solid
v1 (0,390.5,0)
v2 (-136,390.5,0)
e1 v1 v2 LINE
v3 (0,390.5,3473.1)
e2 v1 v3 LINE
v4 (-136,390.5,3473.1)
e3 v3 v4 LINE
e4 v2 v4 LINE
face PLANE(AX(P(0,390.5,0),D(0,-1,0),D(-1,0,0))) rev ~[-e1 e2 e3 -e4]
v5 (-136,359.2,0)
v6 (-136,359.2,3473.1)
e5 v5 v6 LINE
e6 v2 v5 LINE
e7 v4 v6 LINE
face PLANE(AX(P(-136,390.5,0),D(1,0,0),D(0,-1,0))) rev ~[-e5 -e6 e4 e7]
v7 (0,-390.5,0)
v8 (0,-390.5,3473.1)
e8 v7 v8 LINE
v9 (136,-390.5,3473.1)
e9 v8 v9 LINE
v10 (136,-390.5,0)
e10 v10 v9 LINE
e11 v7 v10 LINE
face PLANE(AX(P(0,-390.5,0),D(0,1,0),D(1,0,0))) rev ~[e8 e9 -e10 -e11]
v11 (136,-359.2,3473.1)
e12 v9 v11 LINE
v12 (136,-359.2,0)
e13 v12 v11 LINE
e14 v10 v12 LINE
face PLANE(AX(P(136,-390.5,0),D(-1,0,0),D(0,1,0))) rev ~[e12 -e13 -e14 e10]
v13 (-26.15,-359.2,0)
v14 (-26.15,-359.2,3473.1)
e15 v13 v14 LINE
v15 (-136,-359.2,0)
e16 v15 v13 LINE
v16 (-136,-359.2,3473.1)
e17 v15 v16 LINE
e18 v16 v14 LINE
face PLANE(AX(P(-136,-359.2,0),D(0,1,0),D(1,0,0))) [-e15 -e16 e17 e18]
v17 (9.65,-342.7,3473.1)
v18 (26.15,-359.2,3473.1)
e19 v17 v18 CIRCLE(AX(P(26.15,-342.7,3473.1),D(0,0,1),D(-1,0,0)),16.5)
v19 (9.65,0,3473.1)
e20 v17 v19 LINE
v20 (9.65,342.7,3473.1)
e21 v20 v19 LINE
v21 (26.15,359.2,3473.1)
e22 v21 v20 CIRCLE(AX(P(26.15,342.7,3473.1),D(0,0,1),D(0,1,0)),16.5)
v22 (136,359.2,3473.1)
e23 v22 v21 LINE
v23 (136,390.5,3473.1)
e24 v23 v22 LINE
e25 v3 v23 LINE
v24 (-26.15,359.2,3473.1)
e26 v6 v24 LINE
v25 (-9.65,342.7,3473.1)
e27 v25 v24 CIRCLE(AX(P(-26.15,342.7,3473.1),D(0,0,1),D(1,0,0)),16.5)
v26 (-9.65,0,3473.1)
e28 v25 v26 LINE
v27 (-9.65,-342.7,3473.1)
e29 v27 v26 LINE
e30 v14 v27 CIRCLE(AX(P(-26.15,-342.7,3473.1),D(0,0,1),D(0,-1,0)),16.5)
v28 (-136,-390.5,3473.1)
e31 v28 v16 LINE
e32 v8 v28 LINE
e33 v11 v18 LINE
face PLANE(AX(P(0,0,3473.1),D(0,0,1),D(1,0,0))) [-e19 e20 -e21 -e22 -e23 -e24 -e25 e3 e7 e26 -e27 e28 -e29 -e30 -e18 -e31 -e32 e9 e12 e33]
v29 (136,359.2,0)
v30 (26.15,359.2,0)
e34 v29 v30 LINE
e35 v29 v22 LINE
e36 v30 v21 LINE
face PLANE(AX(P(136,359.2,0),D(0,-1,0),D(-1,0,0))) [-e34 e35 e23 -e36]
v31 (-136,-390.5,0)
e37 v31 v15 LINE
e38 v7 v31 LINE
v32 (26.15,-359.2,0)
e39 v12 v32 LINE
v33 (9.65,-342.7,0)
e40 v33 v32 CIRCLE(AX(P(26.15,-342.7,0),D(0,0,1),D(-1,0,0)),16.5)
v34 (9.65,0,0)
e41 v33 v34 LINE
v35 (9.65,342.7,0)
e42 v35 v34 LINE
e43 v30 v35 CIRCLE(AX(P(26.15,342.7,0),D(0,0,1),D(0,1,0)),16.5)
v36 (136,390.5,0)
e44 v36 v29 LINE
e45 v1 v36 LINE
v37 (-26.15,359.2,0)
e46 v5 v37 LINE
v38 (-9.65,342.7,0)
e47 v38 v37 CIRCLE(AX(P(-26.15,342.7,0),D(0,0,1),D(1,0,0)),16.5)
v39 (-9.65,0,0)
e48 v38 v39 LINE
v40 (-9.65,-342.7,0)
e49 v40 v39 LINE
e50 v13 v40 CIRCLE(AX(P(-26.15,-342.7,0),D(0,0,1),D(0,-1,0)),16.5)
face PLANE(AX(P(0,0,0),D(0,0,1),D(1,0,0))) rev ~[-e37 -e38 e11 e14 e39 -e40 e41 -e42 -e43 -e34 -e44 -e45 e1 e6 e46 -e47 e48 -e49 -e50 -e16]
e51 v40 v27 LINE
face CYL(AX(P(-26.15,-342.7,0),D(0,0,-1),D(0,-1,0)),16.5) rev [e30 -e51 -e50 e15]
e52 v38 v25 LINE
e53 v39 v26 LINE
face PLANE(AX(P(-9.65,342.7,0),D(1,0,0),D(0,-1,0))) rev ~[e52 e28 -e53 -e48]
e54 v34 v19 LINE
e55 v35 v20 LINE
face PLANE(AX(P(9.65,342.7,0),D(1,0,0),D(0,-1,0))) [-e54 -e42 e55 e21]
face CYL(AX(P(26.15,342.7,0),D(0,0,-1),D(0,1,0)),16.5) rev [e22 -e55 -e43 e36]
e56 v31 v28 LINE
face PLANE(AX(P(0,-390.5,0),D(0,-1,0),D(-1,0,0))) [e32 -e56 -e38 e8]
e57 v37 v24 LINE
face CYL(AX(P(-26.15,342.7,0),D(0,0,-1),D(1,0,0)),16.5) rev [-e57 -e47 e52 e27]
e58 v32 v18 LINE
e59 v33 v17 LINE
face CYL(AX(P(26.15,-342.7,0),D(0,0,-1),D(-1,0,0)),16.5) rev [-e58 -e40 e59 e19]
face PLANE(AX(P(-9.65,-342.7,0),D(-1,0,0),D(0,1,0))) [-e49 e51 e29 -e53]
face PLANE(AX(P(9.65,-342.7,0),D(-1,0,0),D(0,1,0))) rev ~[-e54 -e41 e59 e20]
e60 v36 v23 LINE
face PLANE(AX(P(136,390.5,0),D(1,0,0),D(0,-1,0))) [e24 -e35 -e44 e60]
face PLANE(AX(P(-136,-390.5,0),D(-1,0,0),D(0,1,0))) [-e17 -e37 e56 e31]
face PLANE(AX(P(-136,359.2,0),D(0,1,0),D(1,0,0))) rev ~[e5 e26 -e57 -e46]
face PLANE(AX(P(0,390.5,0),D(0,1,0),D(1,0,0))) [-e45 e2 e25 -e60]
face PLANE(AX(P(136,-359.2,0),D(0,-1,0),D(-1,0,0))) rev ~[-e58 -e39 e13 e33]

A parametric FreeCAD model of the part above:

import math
import FreeCAD as App
import Part
import Sketcher
Q = App.Units.Quantity

doc = App.newDocument("Part")
body = doc.addObject("PartDesign::Body", "Body")

# Sketch on XY plane
sketch1 = body.newObject("Sketcher::SketchObject", "Sketch")
sketch1.AttachmentSupport = (doc.getObject("XY_Plane"), [""])
sketch1.MapMode = "FlatFace"
sketch1.addGeometry(Part.LineSegment(App.Vector(-136, -359, 0), App.Vector(-136, -390, 0)), False)
sketch1.addGeometry(Part.LineSegment(App.Vector(-136, -390, 0), App.Vector(136, -390, 0)), False)
sketch1.addGeometry(Part.LineSegment(App.Vector(136, -390, 0), App.Vector(136, -359, 0)), False)
sketch1.addGeometry(Part.LineSegment(App.Vector(136, -359, 0), App.Vector(26, -359, 0)), False)
sketch1.addGeometry(Part.ArcOfCircle(Part.Circle(App.Vector(26, -343, 0), App.Vector(0, 0, 1), 16), math.radians(180), math.radians(270)), False)
sketch1.addGeometry(Part.LineSegment(App.Vector(10, -343, 0), App.Vector(10, 343, 0)), False)
sketch1.addGeometry(Part.ArcOfCircle(Part.Circle(App.Vector(26, 343, 0), App.Vector(0, 0, 1), 16), math.radians(90), math.radians(180)), False)
sketch1.addGeometry(Part.LineSegment(App.Vector(26, 359, 0), App.Vector(136, 359, 0)), False)
sketch1.addGeometry(Part.LineSegment(App.Vector(136, 359, 0), App.Vector(136, 390, 0)), False)
sketch1.addGeometry(Part.LineSegment(App.Vector(136, 390, 0), App.Vector(-136, 390, 0)), False)
sketch1.addGeometry(Part.LineSegment(App.Vector(-136, 390, 0), App.Vector(-136, 359, 0)), False)
sketch1.addGeometry(Part.LineSegment(App.Vector(-136, 359, 0), App.Vector(-26, 359, 0)), False)
sketch1.addGeometry(Part.ArcOfCircle(Part.Circle(App.Vector(-26, 343, 0), App.Vector(0, 0, 1), 16), math.radians(0), math.radians(90)), False)
sketch1.addGeometry(Part.LineSegment(App.Vector(-10, 343, 0), App.Vector(-10, -343, 0)), False)
sketch1.addGeometry(Part.ArcOfCircle(Part.Circle(App.Vector(-26, -343, 0), App.Vector(0, 0, 1), 16), math.radians(-90), math.radians(0)), False)
sketch1.addGeometry(Part.LineSegment(App.Vector(-26, -359, 0), App.Vector(-136, -359, 0)), False)
sketch1.addConstraint(Sketcher.Constraint("Coincident", 0, 2, 1, 1))
sketch1.addConstraint(Sketcher.Constraint("Coincident", 1, 2, 2, 1))
sketch1.addConstraint(Sketcher.Constraint("Coincident", 2, 2, 3, 1))
sketch1.addConstraint(Sketcher.Constraint("Tangent", 3, 2, 4, 2))
sketch1.addConstraint(Sketcher.Constraint("Tangent", 4, 1, 5, 1))
sketch1.addConstraint(Sketcher.Constraint("Tangent", 5, 2, 6, 2))
sketch1.addConstraint(Sketcher.Constraint("Tangent", 6, 1, 7, 1))
sketch1.addConstraint(Sketcher.Constraint("Coincident", 7, 2, 8, 1))
sketch1.addConstraint(Sketcher.Constraint("Coincident", 8, 2, 9, 1))
sketch1.addConstraint(Sketcher.Constraint("Coincident", 9, 2, 10, 1))
sketch1.addConstraint(Sketcher.Constraint("Coincident", 10, 2, 11, 1))
sketch1.addConstraint(Sketcher.Constraint("Tangent", 11, 2, 12, 2))
sketch1.addConstraint(Sketcher.Constraint("Tangent", 12, 1, 13, 1))
sketch1.addConstraint(Sketcher.Constraint("Tangent", 13, 2, 14, 2))
sketch1.addConstraint(Sketcher.Constraint("Tangent", 14, 1, 15, 1))
sketch1.addConstraint(Sketcher.Constraint("Coincident", 15, 2, 0, 1))
sketch1.addConstraint(Sketcher.Constraint("Vertical", 0))
sketch1.addConstraint(Sketcher.Constraint("Horizontal", 1))
sketch1.addConstraint(Sketcher.Constraint("Vertical", 2))
sketch1.addConstraint(Sketcher.Constraint("Horizontal", 3))
sketch1.addConstraint(Sketcher.Constraint("Vertical", 5))
sketch1.addConstraint(Sketcher.Constraint("Horizontal", 7))
sketch1.addConstraint(Sketcher.Constraint("Vertical", 8))
sketch1.addConstraint(Sketcher.Constraint("Horizontal", 9))
sketch1.addConstraint(Sketcher.Constraint("Vertical", 10))
sketch1.addConstraint(Sketcher.Constraint("Horizontal", 11))
sketch1.addConstraint(Sketcher.Constraint("Vertical", 13))
sketch1.addConstraint(Sketcher.Constraint("Horizontal", 15))
sketch1.addConstraint(Sketcher.Constraint("Equal", 4, 6))
sketch1.addConstraint(Sketcher.Constraint("Equal", 6, 12))
sketch1.addConstraint(Sketcher.Constraint("Equal", 12, 14))
sketch1.addConstraint(Sketcher.Constraint("Symmetric", 4, 3, 12, 3, -1, 1))
sketch1.addConstraint(Sketcher.Constraint("Symmetric", 0, 2, 8, 2, -1, 1))
sketch1.addConstraint(Sketcher.Constraint("Symmetric", 7, 2, 10, 2, -2))
sketch1.addConstraint(Sketcher.Constraint("Symmetric", 2, 2, 15, 2, -2))
sketch1.addConstraint(Sketcher.Constraint("Radius", 4, Q("16.5 mm")))
sketch1.addConstraint(Sketcher.Constraint("DistanceY", 0, 2, 0, 1, Q("31.3 mm")))
sketch1.addConstraint(Sketcher.Constraint("DistanceX", 0, 2, -1, 1, Q("136 mm")))
sketch1.addConstraint(Sketcher.Constraint("DistanceY", 0, 2, -1, 1, Q("390.5 mm")))
sketch1.addConstraint(Sketcher.Constraint("DistanceX", -1, 1, 4, 1, Q("9.65 mm")))
pad1 = body.newObject("PartDesign::Pad", "Pad")
pad1.Profile = sketch1
pad1.Length = 3473.1

doc.recompute()
